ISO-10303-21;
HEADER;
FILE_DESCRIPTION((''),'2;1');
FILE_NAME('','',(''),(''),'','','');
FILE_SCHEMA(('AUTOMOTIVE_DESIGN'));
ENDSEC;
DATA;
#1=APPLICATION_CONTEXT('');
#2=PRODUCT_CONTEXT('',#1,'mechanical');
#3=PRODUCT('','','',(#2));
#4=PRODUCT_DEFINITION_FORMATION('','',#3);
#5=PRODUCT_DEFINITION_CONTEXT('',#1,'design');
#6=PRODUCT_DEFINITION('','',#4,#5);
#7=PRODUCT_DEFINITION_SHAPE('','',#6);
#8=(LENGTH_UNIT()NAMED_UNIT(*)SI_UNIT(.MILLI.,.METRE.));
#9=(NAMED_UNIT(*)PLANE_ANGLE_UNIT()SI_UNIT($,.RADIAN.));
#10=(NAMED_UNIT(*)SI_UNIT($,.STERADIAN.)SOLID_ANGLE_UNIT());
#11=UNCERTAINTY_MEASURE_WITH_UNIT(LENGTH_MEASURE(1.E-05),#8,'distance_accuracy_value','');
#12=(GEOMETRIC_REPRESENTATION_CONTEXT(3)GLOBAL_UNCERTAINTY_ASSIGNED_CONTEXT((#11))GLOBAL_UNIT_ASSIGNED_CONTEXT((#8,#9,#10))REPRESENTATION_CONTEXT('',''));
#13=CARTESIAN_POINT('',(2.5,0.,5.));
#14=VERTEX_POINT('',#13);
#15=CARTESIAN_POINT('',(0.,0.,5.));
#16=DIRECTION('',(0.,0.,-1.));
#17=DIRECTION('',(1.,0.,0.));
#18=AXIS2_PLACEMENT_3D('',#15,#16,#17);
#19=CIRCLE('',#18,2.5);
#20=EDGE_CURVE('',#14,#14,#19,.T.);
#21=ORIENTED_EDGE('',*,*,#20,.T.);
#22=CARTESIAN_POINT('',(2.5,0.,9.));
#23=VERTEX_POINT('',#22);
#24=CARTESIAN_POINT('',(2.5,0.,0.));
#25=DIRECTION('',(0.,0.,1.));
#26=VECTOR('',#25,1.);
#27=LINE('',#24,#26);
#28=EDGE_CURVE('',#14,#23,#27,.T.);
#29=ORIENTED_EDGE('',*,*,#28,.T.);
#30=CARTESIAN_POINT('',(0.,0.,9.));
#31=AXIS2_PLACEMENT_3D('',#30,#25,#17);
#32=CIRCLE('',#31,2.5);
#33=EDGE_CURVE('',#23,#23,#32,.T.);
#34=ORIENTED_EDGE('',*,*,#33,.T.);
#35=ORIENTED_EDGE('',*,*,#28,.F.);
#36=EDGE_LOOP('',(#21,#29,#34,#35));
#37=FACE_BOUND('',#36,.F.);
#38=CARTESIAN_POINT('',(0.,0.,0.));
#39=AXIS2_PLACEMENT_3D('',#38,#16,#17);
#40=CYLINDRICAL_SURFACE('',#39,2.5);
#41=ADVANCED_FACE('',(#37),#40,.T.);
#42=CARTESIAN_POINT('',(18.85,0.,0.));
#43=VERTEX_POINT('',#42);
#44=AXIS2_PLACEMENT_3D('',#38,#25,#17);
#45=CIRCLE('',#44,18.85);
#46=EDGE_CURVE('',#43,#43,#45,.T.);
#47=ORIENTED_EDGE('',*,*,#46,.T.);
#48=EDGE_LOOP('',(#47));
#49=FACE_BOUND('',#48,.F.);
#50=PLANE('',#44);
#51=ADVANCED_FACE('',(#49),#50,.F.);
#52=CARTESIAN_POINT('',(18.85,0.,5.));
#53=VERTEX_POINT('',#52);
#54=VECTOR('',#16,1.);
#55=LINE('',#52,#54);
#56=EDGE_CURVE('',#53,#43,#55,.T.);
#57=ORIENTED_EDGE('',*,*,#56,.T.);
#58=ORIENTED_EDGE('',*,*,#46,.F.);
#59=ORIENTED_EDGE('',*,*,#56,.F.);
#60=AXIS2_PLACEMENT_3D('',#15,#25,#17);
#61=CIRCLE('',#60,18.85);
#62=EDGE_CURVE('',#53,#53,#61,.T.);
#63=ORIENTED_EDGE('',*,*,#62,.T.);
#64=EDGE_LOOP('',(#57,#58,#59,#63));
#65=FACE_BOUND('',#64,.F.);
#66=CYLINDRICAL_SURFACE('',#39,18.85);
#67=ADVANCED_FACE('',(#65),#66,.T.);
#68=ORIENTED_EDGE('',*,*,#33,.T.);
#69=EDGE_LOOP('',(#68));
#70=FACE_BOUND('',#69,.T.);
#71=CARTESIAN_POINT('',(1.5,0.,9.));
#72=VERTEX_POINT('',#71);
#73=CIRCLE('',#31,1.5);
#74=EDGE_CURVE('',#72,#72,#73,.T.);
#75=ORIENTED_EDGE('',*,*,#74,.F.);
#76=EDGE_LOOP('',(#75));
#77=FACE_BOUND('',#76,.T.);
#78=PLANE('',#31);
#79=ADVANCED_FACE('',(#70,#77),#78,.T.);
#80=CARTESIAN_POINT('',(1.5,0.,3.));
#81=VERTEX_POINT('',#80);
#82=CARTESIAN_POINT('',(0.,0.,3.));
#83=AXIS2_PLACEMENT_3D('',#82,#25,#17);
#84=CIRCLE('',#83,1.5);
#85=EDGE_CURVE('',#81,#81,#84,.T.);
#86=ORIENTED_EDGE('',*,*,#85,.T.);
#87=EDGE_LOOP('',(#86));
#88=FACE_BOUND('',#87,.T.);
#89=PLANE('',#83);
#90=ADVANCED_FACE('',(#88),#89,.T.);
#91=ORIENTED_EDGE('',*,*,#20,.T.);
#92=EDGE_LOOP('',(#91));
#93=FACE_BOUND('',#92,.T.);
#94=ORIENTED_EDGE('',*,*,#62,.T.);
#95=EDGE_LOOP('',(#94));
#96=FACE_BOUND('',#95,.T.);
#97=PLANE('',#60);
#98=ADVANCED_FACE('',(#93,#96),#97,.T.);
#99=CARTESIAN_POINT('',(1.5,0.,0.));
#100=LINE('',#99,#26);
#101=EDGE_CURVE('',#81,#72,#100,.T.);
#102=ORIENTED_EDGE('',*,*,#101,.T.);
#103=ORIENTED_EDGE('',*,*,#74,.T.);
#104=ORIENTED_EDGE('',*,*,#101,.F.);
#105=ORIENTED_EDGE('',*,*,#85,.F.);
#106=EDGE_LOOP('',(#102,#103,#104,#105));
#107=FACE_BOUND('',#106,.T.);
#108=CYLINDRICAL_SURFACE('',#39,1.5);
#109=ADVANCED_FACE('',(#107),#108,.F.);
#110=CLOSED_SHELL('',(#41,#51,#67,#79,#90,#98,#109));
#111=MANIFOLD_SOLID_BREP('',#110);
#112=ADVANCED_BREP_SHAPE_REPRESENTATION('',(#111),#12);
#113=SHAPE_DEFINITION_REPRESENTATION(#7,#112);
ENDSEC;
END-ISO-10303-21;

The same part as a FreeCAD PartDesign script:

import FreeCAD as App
import Part
import Sketcher
from FreeCAD import Vector

doc = App.newDocument("Part")
body = doc.addObject("PartDesign::Body", "Body")

# Sketch on XY plane
sketch1 = body.newObject("Sketcher::SketchObject", "Sketch")
sketch1.AttachmentSupport = (doc.getObject("XY_Plane"), [""])
sketch1.MapMode = "FlatFace"
sketch1.addGeometry([
    Part.Circle(Vector(0, 0, 0), Vector(0, 0, 1), 18.85),
    Part.Circle(Vector(0, 0, 0), Vector(0, 0, 1), 1.5),
], False)
sketch1.addConstraint([
    Sketcher.Constraint("Coincident", 0, 3, -1, 1),
    Sketcher.Constraint("Coincident", 1, 3, -1, 1),
    Sketcher.Constraint("Diameter", 1, 3.0),
    Sketcher.Constraint("Diameter", 0, 37.7),
])
pad1 = body.newObject("PartDesign::Pad", "Pad")
pad1.Profile = sketch1
pad1.Length = 5

# Sketch on XY plane
sketch2 = body.newObject("Sketcher::SketchObject", "Sketch001")
sketch2.AttachmentSupport = (doc.getObject("XY_Plane"), [""])
sketch2.MapMode = "FlatFace"
sketch2.addGeometry([
    Part.Circle(Vector(0, 0, 0), Vector(0, 0, 1), 2.5),
    Part.Circle(Vector(0, 0, 0), Vector(0, 0, 1), 1.5),
], False)
sketch2.addConstraint([
    Sketcher.Constraint("Coincident", 0, 3, -1, 1),
    Sketcher.Constraint("Coincident", 1, 3, -1, 1),
    Sketcher.Constraint("Diameter", 0, 5.0),
    Sketcher.Constraint("Diameter", 1, 3.0),
])
pad2 = body.newObject("PartDesign::Pad", "Pad001")
pad2.Profile = sketch2
pad2.Length = 9

# Sketch on XY plane
sketch3 = body.newObject("Sketcher::SketchObject", "Sketch002")
sketch3.AttachmentSupport = (doc.getObject("XY_Plane"), [""])
sketch3.MapMode = "FlatFace"
sketch3.addGeometry([
    Part.Circle(Vector(0, 0, 0), Vector(0, 0, 1), 18.85),
    Part.Circle(Vector(0, 0, 0), Vector(0, 0, 1), 2.5),
    Part.Circle(Vector(0, 0, 0), Vector(0, 0, 1), 1.5),
], False)
sketch3.addConstraint([
    Sketcher.Constraint("Coincident", 0, 3, -1, 1),
    Sketcher.Constraint("Coincident", 1, 3, -1, 1),
    Sketcher.Constraint("Coincident", 2, 3, -1, 1),
    Sketcher.Constraint("Diameter", 1, 5.0),
    Sketcher.Constraint("Diameter", 2, 3.0),
    Sketcher.Constraint("Diameter", 0, 37.7),
])
pad3 = body.newObject("PartDesign::Pad", "Pad002")
pad3.Profile = sketch3
pad3.Length = 3

doc.recompute()
